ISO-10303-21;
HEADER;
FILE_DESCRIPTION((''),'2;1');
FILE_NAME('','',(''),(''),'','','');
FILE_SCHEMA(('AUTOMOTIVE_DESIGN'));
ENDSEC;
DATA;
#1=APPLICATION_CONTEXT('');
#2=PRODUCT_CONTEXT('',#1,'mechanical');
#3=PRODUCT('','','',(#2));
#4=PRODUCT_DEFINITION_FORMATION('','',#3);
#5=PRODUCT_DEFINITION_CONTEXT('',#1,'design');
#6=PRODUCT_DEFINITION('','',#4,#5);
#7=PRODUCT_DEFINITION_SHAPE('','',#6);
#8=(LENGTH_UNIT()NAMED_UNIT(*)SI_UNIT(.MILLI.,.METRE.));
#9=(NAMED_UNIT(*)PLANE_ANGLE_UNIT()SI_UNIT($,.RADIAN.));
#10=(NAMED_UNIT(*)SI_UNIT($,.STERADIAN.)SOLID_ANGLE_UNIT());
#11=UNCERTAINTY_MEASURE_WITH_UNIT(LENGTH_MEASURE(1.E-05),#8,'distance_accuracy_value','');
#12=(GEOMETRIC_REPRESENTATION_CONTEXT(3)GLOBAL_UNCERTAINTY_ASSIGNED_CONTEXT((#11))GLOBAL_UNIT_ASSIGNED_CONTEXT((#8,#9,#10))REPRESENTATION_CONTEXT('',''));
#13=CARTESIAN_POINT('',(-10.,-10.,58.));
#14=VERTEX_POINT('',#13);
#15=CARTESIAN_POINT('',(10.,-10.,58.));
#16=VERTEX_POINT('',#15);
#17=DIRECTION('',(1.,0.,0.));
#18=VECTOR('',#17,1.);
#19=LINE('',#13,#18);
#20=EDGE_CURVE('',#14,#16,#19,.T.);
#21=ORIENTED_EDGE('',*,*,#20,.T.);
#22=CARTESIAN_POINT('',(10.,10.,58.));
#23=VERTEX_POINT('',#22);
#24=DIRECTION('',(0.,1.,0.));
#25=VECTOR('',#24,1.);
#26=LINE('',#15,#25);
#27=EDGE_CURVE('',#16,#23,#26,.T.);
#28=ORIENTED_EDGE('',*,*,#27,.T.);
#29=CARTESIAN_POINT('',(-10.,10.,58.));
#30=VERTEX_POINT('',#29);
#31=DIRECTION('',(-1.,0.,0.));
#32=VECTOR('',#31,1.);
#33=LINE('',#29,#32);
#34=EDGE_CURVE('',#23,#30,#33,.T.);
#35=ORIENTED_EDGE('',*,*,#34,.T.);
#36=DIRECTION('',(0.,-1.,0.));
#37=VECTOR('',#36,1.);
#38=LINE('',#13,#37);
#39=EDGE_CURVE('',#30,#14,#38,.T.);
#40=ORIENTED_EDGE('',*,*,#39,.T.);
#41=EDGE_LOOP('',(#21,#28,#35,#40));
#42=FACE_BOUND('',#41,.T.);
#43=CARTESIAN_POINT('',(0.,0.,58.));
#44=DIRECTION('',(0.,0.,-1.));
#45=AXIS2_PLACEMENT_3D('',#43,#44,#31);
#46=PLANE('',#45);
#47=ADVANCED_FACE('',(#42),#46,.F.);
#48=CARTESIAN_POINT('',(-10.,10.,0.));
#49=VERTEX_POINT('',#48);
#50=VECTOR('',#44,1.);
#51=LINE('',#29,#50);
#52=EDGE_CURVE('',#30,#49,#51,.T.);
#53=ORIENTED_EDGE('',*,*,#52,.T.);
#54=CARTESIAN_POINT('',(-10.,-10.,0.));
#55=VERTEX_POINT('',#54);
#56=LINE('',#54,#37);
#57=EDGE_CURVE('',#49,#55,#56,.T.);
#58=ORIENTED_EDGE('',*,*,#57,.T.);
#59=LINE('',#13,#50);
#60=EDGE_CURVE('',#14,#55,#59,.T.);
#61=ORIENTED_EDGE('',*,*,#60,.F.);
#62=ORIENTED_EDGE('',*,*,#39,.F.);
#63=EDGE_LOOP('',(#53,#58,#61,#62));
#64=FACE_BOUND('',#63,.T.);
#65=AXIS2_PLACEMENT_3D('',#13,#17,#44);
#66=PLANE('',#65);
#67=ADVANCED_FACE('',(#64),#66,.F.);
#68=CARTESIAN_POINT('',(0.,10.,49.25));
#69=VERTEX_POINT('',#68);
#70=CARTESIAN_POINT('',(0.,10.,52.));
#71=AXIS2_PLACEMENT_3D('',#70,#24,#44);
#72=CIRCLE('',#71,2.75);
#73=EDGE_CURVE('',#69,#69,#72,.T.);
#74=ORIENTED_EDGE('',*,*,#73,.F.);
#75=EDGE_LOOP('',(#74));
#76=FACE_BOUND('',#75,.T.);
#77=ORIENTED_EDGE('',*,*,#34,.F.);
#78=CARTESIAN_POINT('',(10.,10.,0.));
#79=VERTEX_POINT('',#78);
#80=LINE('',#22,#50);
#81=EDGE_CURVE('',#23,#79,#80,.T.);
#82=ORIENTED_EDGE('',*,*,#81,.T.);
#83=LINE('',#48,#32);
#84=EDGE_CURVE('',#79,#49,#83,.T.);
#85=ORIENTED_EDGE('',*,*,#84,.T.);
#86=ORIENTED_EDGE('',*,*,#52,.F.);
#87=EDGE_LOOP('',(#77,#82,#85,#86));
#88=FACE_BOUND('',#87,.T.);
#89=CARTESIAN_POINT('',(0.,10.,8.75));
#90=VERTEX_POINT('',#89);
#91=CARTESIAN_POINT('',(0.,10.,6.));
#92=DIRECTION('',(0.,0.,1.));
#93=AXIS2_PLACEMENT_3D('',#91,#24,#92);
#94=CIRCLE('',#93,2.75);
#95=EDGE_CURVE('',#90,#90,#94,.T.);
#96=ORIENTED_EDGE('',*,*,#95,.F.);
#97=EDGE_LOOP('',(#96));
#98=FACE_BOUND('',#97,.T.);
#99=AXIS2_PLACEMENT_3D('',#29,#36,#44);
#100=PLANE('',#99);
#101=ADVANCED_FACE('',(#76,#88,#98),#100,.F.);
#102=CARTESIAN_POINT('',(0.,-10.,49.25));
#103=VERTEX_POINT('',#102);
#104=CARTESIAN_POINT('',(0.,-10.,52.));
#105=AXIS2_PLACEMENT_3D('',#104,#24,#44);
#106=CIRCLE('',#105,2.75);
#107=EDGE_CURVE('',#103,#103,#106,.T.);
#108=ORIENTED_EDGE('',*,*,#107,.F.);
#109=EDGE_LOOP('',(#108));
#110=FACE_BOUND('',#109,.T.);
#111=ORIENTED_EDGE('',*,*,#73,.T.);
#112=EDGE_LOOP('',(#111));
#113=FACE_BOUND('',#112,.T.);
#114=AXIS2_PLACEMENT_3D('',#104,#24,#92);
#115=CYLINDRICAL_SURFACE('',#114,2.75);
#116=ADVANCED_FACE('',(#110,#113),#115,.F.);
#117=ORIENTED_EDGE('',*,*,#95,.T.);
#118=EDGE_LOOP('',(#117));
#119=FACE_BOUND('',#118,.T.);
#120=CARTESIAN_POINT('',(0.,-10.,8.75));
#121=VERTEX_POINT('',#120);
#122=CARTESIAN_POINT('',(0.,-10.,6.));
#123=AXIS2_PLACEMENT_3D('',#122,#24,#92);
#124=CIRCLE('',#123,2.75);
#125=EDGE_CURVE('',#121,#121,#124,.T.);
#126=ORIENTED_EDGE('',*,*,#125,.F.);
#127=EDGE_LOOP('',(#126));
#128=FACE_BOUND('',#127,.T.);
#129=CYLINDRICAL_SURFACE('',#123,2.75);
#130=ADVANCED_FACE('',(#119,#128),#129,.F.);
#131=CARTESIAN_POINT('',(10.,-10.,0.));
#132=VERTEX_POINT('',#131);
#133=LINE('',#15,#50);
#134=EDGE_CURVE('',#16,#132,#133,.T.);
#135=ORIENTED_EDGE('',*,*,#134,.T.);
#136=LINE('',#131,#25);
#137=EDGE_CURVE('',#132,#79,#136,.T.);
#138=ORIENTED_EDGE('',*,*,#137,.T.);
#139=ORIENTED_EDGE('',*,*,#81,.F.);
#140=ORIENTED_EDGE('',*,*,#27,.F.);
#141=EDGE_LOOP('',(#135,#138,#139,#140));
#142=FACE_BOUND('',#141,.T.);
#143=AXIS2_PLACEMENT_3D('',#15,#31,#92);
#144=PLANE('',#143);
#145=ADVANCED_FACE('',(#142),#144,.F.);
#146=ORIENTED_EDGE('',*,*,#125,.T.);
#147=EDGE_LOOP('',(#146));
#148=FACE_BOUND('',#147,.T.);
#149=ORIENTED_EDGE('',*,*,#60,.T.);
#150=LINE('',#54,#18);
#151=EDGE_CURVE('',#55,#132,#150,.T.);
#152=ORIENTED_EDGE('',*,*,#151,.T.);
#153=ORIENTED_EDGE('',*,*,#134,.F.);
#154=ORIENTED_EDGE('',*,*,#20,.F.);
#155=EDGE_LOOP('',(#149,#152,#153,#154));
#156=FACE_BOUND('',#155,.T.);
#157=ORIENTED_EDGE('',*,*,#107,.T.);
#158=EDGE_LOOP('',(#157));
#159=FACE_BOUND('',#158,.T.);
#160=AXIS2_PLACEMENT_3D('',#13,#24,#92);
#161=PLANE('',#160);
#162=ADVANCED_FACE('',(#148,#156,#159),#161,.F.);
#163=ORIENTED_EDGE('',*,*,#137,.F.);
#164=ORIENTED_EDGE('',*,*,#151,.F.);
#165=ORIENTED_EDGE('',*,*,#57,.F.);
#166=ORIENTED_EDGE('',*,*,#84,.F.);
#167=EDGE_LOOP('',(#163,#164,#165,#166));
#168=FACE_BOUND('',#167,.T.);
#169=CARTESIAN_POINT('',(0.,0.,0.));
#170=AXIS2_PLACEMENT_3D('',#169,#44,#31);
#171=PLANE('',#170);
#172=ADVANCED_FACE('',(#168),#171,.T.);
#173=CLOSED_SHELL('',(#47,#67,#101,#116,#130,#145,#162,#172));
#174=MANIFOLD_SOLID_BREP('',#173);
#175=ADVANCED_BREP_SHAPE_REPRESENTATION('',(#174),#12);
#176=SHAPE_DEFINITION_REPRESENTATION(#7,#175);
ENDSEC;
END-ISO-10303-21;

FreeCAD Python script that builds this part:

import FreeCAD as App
import Part
import Sketcher

V = App.Vector
Q = App.Units.Quantity

doc = App.newDocument("Part")
params = doc.addObject("Spreadsheet::Sheet", "Params")
for row, (alias, value) in enumerate([
    ("sketch1_width", "20 mm"),
    ("pad1_length", "58 mm"),
    ("sketch2_diameter", "5.5 mm"),
], start=1):
    params.set(f"A{row}", alias)
    params.set(f"B{row}", "=" + value)
    params.setAlias(f"B{row}", alias)

body = doc.addObject("PartDesign::Body", "Body")

# Sketch on XY plane
sketch1 = doc.addObject("Sketcher::SketchObject", "Sketch")
body.addObject(sketch1)
sketch1.AttachmentSupport = (doc.XY_Plane, [""])
sketch1.MapMode = "FlatFace"
sketch1.addGeometry(Part.LineSegment(V(-10, 10, 0), V(-10, -10, 0)), False)
sketch1.addGeometry(Part.LineSegment(V(-10, -10, 0), V(10, -10, 0)), False)
sketch1.addGeometry(Part.LineSegment(V(10, -10, 0), V(10, 10, 0)), False)
sketch1.addGeometry(Part.LineSegment(V(10, 10, 0), V(-10, 10, 0)), False)
sketch1.addConstraint(Sketcher.Constraint("Coincident", 0, 2, 1, 1))
sketch1.addConstraint(Sketcher.Constraint("Coincident", 1, 2, 2, 1))
sketch1.addConstraint(Sketcher.Constraint("Coincident", 2, 2, 3, 1))
sketch1.addConstraint(Sketcher.Constraint("Coincident", 3, 2, 0, 1))
sketch1.addConstraint(Sketcher.Constraint("Vertical", 0))
sketch1.addConstraint(Sketcher.Constraint("Horizontal", 1))
sketch1.addConstraint(Sketcher.Constraint("Vertical", 2))
sketch1.addConstraint(Sketcher.Constraint("Horizontal", 3))
sketch1.addConstraint(Sketcher.Constraint("Symmetric", 0, 2, 2, 2, -1, 1))
sketch1.addConstraint(Sketcher.Constraint("Equal", 3, 0))
sketch1.addConstraint(Sketcher.Constraint("DistanceX", 1, 1, 1, 2, Q("20 mm")))
sketch1.setExpression("Constraints[10]", "Params.sketch1_width")
pad1 = doc.addObject("PartDesign::Pad", "Pad")
body.addObject(pad1)
pad1.Profile = sketch1
pad1.setExpression("Length", "Params.pad1_length")

# Sketch on XZ plane
sketch2 = doc.addObject("Sketcher::SketchObject", "Sketch001")
body.addObject(sketch2)
sketch2.AttachmentSupport = (doc.XZ_Plane, [""])
sketch2.MapMode = "FlatFace"
sketch2.AttachmentOffset = App.Placement(V(0, 0, -10), App.Rotation())
sketch2.addGeometry(Part.Circle(V(0, 6, 0), V(0, 0, 1), 2.8), False)
sketch2.addGeometry(Part.Circle(V(0, 52, 0), V(0, 0, 1), 2.8), False)
sketch2.addConstraint(Sketcher.Constraint("Equal", 0, 1))
sketch2.addConstraint(Sketcher.Constraint("PointOnObject", 0, 3, -2))
sketch2.addConstraint(Sketcher.Constraint("PointOnObject", 1, 3, -2))
sketch2.addConstraint(Sketcher.Constraint("Diameter", 0, Q("5.5 mm")))
sketch2.addConstraint(Sketcher.Constraint("DistanceY", -1, 1, 0, 3, Q("6 mm")))
sketch2.addConstraint(Sketcher.Constraint("DistanceY", -1, 1, 1, 3, Q("52 mm")))
sketch2.setExpression("Constraints[3]", "Params.sketch2_diameter")
pocket1 = doc.addObject("PartDesign::Pocket", "Pocket")
body.addObject(pocket1)
pocket1.Profile = sketch2
pocket1.Type = "ThroughAll"
pocket1.Reversed = True

doc.recompute()
